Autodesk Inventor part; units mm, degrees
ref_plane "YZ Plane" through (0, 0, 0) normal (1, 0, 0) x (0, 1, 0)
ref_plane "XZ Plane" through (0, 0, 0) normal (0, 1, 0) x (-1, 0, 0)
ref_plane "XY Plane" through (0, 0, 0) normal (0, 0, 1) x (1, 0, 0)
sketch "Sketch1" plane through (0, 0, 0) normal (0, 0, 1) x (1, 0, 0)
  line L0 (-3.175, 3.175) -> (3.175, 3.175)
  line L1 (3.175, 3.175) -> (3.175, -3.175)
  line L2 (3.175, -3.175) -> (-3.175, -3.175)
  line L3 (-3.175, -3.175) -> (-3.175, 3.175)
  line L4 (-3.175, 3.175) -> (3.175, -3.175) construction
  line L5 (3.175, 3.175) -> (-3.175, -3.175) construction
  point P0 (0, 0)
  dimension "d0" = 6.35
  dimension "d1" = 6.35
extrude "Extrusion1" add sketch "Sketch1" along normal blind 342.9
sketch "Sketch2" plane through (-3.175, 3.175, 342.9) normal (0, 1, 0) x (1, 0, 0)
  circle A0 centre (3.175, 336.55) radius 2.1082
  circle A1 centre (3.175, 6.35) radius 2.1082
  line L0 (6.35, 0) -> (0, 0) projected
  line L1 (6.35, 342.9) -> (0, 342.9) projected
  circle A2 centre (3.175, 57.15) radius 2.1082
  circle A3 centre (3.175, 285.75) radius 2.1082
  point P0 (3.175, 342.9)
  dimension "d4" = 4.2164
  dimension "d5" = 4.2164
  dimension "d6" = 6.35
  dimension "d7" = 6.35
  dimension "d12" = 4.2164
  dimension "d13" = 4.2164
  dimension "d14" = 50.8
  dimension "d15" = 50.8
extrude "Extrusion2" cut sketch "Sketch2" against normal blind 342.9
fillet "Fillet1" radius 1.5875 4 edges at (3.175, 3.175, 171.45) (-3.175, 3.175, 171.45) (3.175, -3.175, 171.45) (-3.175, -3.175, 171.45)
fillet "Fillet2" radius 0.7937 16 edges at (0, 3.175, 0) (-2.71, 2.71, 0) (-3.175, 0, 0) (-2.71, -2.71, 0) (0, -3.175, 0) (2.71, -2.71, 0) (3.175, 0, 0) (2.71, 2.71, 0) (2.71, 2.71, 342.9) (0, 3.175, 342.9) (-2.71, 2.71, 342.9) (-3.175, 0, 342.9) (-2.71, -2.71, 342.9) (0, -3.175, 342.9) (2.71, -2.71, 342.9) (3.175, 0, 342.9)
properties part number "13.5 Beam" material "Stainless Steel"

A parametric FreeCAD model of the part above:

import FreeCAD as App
import Part
import Sketcher
from FreeCAD import Vector
Q = App.Units.Quantity


def edges_at(feature, points):
    """Names of the edges that pass closest to the given points."""
    edges = feature.Shape.Edges
    near = lambda p: min(range(len(edges)), key=lambda i: edges[i].distToShape(Part.Vertex(*p))[0])
    return sorted({f"Edge{near(p) + 1}" for p in points})


def add_polygon(sketch, points):
    """Adds a closed chain of lines whose ends are joined by coincident constraints."""
    first, n = sketch.GeometryCount, len(points)
    for a, b in zip(points, points[1:] + points[:1]):
        sketch.addGeometry(Part.LineSegment(App.Vector(*a, 0), App.Vector(*b, 0)), False)
    for i in range(n):
        sketch.addConstraint(Sketcher.Constraint("Coincident", first + i, 2, first + (i + 1) % n, 1))

doc = App.newDocument("Part")
body = doc.addObject("PartDesign::Body", "Body")

# Sketch on XY plane
sketch1 = doc.addObject("Sketcher::SketchObject", "Sketch")
body.addObject(sketch1)
sketch1.AttachmentSupport = (doc.XY_Plane, [""])
sketch1.MapMode = "FlatFace"
add_polygon(sketch1, [(3, 3), (-3, 3), (-3, -3), (3, -3)])  # lines 0-3
sketch1.addConstraint(Sketcher.Constraint("Horizontal", 0))
sketch1.addConstraint(Sketcher.Constraint("Vertical", 1))
sketch1.addConstraint(Sketcher.Constraint("Horizontal", 2))
sketch1.addConstraint(Sketcher.Constraint("Vertical", 3))
sketch1.addConstraint(Sketcher.Constraint("Symmetric", 0, 2, 2, 2, -1, 1))
sketch1.addConstraint(Sketcher.Constraint("Equal", 2, 1))
sketch1.addConstraint(Sketcher.Constraint("DistanceX", 0, 2, 0, 1, Q("0.25 in")))
pad1 = doc.addObject("PartDesign::Pad", "Pad")
body.addObject(pad1)
pad1.Profile = sketch1
pad1.Length = Q("13.5 in")

# Sketch on XZ plane
sketch2 = doc.addObject("Sketcher::SketchObject", "Sketch001")
body.addObject(sketch2)
sketch2.AttachmentSupport = (doc.XZ_Plane, [""])
sketch2.MapMode = "FlatFace"
sketch2.AttachmentOffset = App.Placement(Vector(0, 0, -0.125 * 25.4), App.Rotation())
sketch2.addGeometry(Part.Circle(Vector(0, 6.3, 0), Vector(0, 0, 1), 2.1), False)
sketch2.addGeometry(Part.Circle(Vector(0, 336.6, 0), Vector(0, 0, 1), 2.1), False)
sketch2.addGeometry(Part.Circle(Vector(0, 285.8, 0), Vector(0, 0, 1), 2.1), False)
sketch2.addGeometry(Part.Circle(Vector(0, 57.1, 0), Vector(0, 0, 1), 2.1), False)
sketch2.addConstraint(Sketcher.Constraint("Equal", 0, 1))
sketch2.addConstraint(Sketcher.Constraint("Equal", 1, 2))
sketch2.addConstraint(Sketcher.Constraint("Equal", 2, 3))
sketch2.addConstraint(Sketcher.Constraint("PointOnObject", 0, 3, -2))
sketch2.addConstraint(Sketcher.Constraint("PointOnObject", 1, 3, -2))
sketch2.addConstraint(Sketcher.Constraint("PointOnObject", 2, 3, -2))
sketch2.addConstraint(Sketcher.Constraint("PointOnObject", 3, 3, -2))
sketch2.addConstraint(Sketcher.Constraint("Diameter", 0, Q("0.166 in")))
sketch2.addConstraint(Sketcher.Constraint("DistanceY", 2, 3, 1, 3, Q("2 in")))
sketch2.addConstraint(Sketcher.Constraint("DistanceY", 0, 3, 3, 3, Q("2 in")))
sketch2.addConstraint(Sketcher.Constraint("DistanceY", -1, 1, 0, 3, Q("0.25 in")))
sketch2.addConstraint(Sketcher.Constraint("DistanceY", 0, 3, 1, 3, Q("13 in")))
pocket1 = doc.addObject("PartDesign::Pocket", "Pocket")
body.addObject(pocket1)
pocket1.Profile = sketch2
pocket1.Length = Q("13.5 in")
pocket1.Reversed = True
doc.recompute()

fillet = doc.addObject("PartDesign::Fillet", "Fillet")
body.addObject(fillet)
fillet.Base = (pocket1, edges_at(pocket1, [
    (3.175, 3.175, 171.45),
    (-3.175, 3.175, 171.45),
    (3.175, -3.175, 171.45),
    (-3.175, -3.175, 171.45),
]))
fillet.Radius = Q("0.0625 in")
doc.recompute()

fillet2 = doc.addObject("PartDesign::Fillet", "Fillet001")
body.addObject(fillet2)
fillet2.Base = (fillet, edges_at(fillet, [
    (0, 3.175, 0),
    (-2.71, 2.71, 0),
    (-3.175, 0, 0),
    (-2.71, -2.71, 0),
    (0, -3.175, 0),
    (2.71, -2.71, 0),
    (3.175, 0, 0),
    (2.71, 2.71, 0),
    (2.71, 2.71, 342.9),
    (0, 3.175, 342.9),
    (-2.71, 2.71, 342.9),
    (-3.175, 0, 342.9),
    (-2.71, -2.71, 342.9),
    (0, -3.175, 342.9),
    (2.71, -2.71, 342.9),
    (3.175, 0, 342.9),
]))
fillet2.Radius = Q("0.031248 in")

doc.recompute()
